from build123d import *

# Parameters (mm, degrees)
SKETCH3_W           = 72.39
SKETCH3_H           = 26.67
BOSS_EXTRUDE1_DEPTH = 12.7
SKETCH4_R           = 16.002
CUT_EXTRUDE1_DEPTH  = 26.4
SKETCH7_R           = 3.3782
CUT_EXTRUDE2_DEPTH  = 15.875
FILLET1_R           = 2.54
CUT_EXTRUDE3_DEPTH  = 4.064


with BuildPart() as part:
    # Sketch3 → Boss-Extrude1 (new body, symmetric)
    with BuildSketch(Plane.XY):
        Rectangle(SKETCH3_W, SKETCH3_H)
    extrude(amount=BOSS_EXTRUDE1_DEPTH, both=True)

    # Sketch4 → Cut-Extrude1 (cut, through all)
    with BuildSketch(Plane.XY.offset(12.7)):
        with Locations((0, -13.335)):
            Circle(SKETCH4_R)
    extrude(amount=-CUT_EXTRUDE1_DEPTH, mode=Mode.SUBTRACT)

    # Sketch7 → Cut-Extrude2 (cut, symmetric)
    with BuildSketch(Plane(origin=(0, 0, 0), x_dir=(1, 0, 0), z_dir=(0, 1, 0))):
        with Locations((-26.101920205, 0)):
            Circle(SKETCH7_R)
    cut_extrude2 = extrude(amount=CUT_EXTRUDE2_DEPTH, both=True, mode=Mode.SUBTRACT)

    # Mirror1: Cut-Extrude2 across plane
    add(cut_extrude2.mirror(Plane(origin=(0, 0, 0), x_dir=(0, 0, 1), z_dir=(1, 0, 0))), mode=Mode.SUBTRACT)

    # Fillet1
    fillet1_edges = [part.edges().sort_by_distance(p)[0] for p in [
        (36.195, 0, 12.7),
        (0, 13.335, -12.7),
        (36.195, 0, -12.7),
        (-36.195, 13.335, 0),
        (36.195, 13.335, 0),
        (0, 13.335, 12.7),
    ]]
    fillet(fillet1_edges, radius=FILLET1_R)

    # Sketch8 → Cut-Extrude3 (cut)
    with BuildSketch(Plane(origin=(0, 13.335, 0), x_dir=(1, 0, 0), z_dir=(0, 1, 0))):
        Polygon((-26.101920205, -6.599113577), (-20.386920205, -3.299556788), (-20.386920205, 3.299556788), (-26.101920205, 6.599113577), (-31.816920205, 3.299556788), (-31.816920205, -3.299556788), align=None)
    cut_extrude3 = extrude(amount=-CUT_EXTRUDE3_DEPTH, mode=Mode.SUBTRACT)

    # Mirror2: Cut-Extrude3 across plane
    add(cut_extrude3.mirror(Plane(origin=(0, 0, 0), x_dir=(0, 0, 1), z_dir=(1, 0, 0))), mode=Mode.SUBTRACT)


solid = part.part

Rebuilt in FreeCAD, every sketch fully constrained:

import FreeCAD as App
import Part
import Sketcher
Q = App.Units.Quantity


def edges_at(feature, points):
    """Names of the edges that pass closest to the given points."""
    edges = feature.Shape.Edges
    near = lambda p: min(range(len(edges)), key=lambda i: edges[i].distToShape(Part.Vertex(*p))[0])
    return sorted({f"Edge{near(p) + 1}" for p in points})


def add_polygon(sketch, points):
    """Adds a closed chain of lines whose ends are joined by coincident constraints."""
    first, n = sketch.GeometryCount, len(points)
    for a, b in zip(points, points[1:] + points[:1]):
        sketch.addGeometry(Part.LineSegment(App.Vector(*a, 0), App.Vector(*b, 0)), False)
    for i in range(n):
        sketch.addConstraint(Sketcher.Constraint("Coincident", first + i, 2, first + (i + 1) % n, 1))

doc = App.newDocument("Part")
body = doc.addObject("PartDesign::Body", "Body")

sketch1 = body.newObject("Sketcher::SketchObject", "Sketch")
sketch1.AttachmentSupport = (doc.getObject("XY_Plane"), [""])
sketch1.MapMode = "FlatFace"
add_polygon(sketch1, [(-36, 13), (-36, -13), (36, -13), (36, 13)])
sketch1.addConstraint(Sketcher.Constraint("Vertical", 0))
sketch1.addConstraint(Sketcher.Constraint("Horizontal", 1))
sketch1.addConstraint(Sketcher.Constraint("Vertical", 2))
sketch1.addConstraint(Sketcher.Constraint("Horizontal", 3))
sketch1.addConstraint(Sketcher.Constraint("Symmetric", 0, 2, 2, 2, -1, 1))
sketch1.addConstraint(Sketcher.Constraint("DistanceX", 1, 1, 1, 2, Q("2.85 in")))
sketch1.addConstraint(Sketcher.Constraint("DistanceY", 0, 2, 0, 1, Q("1.05 in")))
pad1 = body.newObject("PartDesign::Pad", "Pad")
pad1.Profile = sketch1
pad1.Length = Q("1 in")
pad1.Midplane = True

sketch2 = body.newObject("Sketcher::SketchObject", "Sketch001")
sketch2.AttachmentSupport = (doc.getObject("XY_Plane"), [""])
sketch2.MapMode = "FlatFace"
sketch2.AttachmentOffset = App.Placement(App.Vector(0, 0, 0.5 * 25.4), App.Rotation())
sketch2.addGeometry(Part.Circle(App.Vector(0, -13, 0), App.Vector(0, 0, 1), 16), False)
sketch2.addConstraint(Sketcher.Constraint("PointOnObject", 0, 3, -2))
sketch2.addConstraint(Sketcher.Constraint("Diameter", 0, Q("1.26 in")))
sketch2.addConstraint(Sketcher.Constraint("DistanceY", 0, 3, -1, 1, Q("0.525 in")))
pocket1 = body.newObject("PartDesign::Pocket", "Pocket")
pocket1.Profile = sketch2
pocket1.Type = "ThroughAll"

sketch3 = body.newObject("Sketcher::SketchObject", "Sketch002")
sketch3.AttachmentSupport = (doc.getObject("XZ_Plane"), [""])
sketch3.MapMode = "FlatFace"
sketch3.addGeometry(Part.Circle(App.Vector(-26.1, 0, 0), App.Vector(0, 0, 1), 3.4), False)
sketch3.addConstraint(Sketcher.Constraint("PointOnObject", 0, 3, -1))
sketch3.addConstraint(Sketcher.Constraint("Diameter", 0, Q("0.266 in")))
sketch3.addConstraint(Sketcher.Constraint("DistanceX", 0, 3, -1, 1, Q("26.10192 mm")))
pocket2 = body.newObject("PartDesign::Pocket", "Pocket001")
pocket2.Profile = sketch3
pocket2.Length = Q("1.25 in")
pocket2.Midplane = True
doc.recompute()

mirrored = body.newObject("PartDesign::Mirrored", "Mirrored")
mirrored.Originals = [pocket2]
mirrored.MirrorPlane = (doc.getObject("YZ_Plane"), [""])
body.Tip = mirrored
doc.recompute()

fillet = body.newObject("PartDesign::Fillet", "Fillet")
fillet.Base = (mirrored, edges_at(mirrored, [
    (36.195, 0, 12.7),
    (0, 13.335, -12.7),
    (36.195, 0, -12.7),
    (-36.195, 13.335, 0),
    (36.195, 13.335, 0),
    (0, 13.335, 12.7),
]))
fillet.Radius = Q("0.1 in")

sketch4 = body.newObject("Sketcher::SketchObject", "Sketch003")
sketch4.AttachmentSupport = (doc.getObject("XZ_Plane"), [""])
sketch4.MapMode = "FlatFace"
sketch4.AttachmentOffset = App.Placement(App.Vector(0, 0, -0.525 * 25.4), App.Rotation())
add_polygon(sketch4, [(-26, 7), (-20, 3), (-20, -3), (-26, -7), (-32, -3), (-32, 3)])
sketch4.addConstraint(Sketcher.Constraint("Vertical", 1))
sketch4.addConstraint(Sketcher.Constraint("Vertical", 4))
sketch4.addConstraint(Sketcher.Constraint("Symmetric", 2, 2, 5, 2, -1))
sketch4.addConstraint(Sketcher.Constraint("Parallel", 0, 3))
sketch4.addConstraint(Sketcher.Constraint("Parallel", 2, 5))
sketch4.addConstraint(Sketcher.Constraint("Horizontal", 1, 2, 3, 2))
sketch4.addConstraint(Sketcher.Constraint("Horizontal", 0, 2, 4, 2))
sketch4.addConstraint(Sketcher.Constraint("Angle", 0, Q("-30 deg")))
sketch4.addConstraint(Sketcher.Constraint("DistanceX", 3, 2, 1, 2, Q("0.45 in")))
sketch4.addConstraint(Sketcher.Constraint("DistanceY", 1, 2, 1, 1, Q("6.599114 mm")))
sketch4.addConstraint(Sketcher.Constraint("DistanceX", 0, 2, -1, 1, Q("20.38692 mm")))
pocket3 = body.newObject("PartDesign::Pocket", "Pocket002")
pocket3.Profile = sketch4
pocket3.Length = Q("0.16 in")
pocket3.Reversed = True
doc.recompute()

mirrored2 = body.newObject("PartDesign::Mirrored", "Mirrored001")
mirrored2.Originals = [pocket3]
mirrored2.MirrorPlane = (doc.getObject("YZ_Plane"), [""])
body.Tip = mirrored2

doc.recompute()
